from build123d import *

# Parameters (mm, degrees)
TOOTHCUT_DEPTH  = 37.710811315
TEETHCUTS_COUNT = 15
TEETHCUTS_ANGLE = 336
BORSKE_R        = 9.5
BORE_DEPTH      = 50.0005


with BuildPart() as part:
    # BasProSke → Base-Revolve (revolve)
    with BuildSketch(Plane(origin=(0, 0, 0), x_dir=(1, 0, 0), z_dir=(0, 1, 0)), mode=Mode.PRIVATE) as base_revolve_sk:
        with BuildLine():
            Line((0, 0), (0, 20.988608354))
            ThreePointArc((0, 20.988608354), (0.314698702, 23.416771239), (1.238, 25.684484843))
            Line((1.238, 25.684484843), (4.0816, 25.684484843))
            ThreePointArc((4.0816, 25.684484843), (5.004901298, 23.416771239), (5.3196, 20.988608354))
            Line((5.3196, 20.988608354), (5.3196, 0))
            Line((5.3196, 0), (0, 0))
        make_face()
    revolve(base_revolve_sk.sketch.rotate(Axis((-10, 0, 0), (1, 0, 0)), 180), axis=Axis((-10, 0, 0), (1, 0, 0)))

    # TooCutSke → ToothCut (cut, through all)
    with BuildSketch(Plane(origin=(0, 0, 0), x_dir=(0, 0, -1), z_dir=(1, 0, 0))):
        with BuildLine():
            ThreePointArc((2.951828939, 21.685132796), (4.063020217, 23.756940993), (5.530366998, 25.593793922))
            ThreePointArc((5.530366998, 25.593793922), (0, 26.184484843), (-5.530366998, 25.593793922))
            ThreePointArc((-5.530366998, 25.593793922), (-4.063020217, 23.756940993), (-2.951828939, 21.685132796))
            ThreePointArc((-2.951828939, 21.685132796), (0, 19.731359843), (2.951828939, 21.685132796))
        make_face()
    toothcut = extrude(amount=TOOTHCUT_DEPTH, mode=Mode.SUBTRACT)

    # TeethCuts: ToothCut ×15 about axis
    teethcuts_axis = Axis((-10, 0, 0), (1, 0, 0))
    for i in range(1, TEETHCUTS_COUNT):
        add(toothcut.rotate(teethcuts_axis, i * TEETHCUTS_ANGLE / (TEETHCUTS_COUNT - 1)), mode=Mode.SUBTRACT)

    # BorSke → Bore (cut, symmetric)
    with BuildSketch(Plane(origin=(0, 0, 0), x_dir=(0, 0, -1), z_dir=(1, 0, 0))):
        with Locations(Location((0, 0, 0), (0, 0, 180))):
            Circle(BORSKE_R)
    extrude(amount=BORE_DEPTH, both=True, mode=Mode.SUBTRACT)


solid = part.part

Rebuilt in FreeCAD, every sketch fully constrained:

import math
import FreeCAD as App
import Part
import Sketcher
Q = App.Units.Quantity

doc = App.newDocument("Part")
body = doc.addObject("PartDesign::Body", "Body")

sketch1 = body.newObject("Sketcher::SketchObject", "Sketch")
sketch1.AttachmentSupport = (doc.getObject("XZ_Plane"), [""])
sketch1.MapMode = "FlatFace"
sketch1.addGeometry(Part.LineSegment(App.Vector(0, -21, 0), App.Vector(0, 0, 0)), False)
sketch1.addGeometry(Part.LineSegment(App.Vector(0, 0, 0), App.Vector(5.3, 0, 0)), False)
sketch1.addGeometry(Part.LineSegment(App.Vector(5.3, 0, 0), App.Vector(5.3, -21, 0)), False)
sketch1.addGeometry(Part.ArcOfCircle(Part.Circle(App.Vector(-4.2, -21, 0), App.Vector(0, 0, 1), 9.5), math.radians(-30), math.radians(0)), False)
sketch1.addGeometry(Part.LineSegment(App.Vector(4.1, -25.7, 0), App.Vector(1.2, -25.7, 0)), False)
sketch1.addGeometry(Part.ArcOfCircle(Part.Circle(App.Vector(9.5, -21, 0), App.Vector(0, 0, 1), 9.5), math.radians(-180), math.radians(-150)), False)
sketch1.addConstraint(Sketcher.Constraint("Coincident", 0, 2, 1, 1))
sketch1.addConstraint(Sketcher.Constraint("Coincident", 1, 2, 2, 1))
sketch1.addConstraint(Sketcher.Constraint("Tangent", 2, 2, 3, 2))
sketch1.addConstraint(Sketcher.Constraint("Coincident", 3, 1, 4, 1))
sketch1.addConstraint(Sketcher.Constraint("Coincident", 4, 2, 5, 2))
sketch1.addConstraint(Sketcher.Constraint("Tangent", 5, 1, 0, 1))
sketch1.addConstraint(Sketcher.Constraint("Vertical", 0))
sketch1.addConstraint(Sketcher.Constraint("Horizontal", 1))
sketch1.addConstraint(Sketcher.Constraint("Vertical", 2))
sketch1.addConstraint(Sketcher.Constraint("Horizontal", 4))
sketch1.addConstraint(Sketcher.Constraint("Coincident", 0, 2, -1, 1))
sketch1.addConstraint(Sketcher.Constraint("Equal", 3, 5))
sketch1.addConstraint(Sketcher.Constraint("Horizontal", 3, 3, 5, 3))
sketch1.addConstraint(Sketcher.Constraint("Radius", 3, Q("0.375 in")))
sketch1.addConstraint(Sketcher.Constraint("DistanceX", 1, 1, 1, 2, 5.3196))
sketch1.addConstraint(Sketcher.Constraint("DistanceX", 4, 2, 4, 1, 2.8436))
sketch1.addConstraint(Sketcher.Constraint("DistanceY", 3, 1, -1, 1, Q("1.0112002 in")))
revolution = body.newObject("PartDesign::Revolution", "Revolution")
revolution.Profile = sketch1
revolution.ReferenceAxis = (sketch1, ["H_Axis"])
revolution.Angle = 360

sketch2 = body.newObject("Sketcher::SketchObject", "Sketch001")
sketch2.AttachmentSupport = (doc.getObject("YZ_Plane"), [""])
sketch2.MapMode = "FlatFace"
sketch2.addGeometry(Part.ArcOfCircle(Part.Circle(App.Vector(16.6, -14.9, 0), App.Vector(0, 0, 1), 13), math.radians(46), math.radians(67)), False)
sketch2.addGeometry(Part.ArcOfCircle(Part.Circle(App.Vector(0, 0, 0), App.Vector(0, 0, 1), 26.2), math.radians(-12), math.radians(12)), False)
sketch2.addGeometry(Part.ArcOfCircle(Part.Circle(App.Vector(16.6, 14.9, 0), App.Vector(0, 0, 1), 13), math.radians(-67), math.radians(-46)), False)
sketch2.addGeometry(Part.ArcOfCircle(Part.Circle(App.Vector(22.9, 0, 0), App.Vector(0, 0, 1), 3.2), math.radians(113), math.radians(247)), False)
sketch2.addConstraint(Sketcher.Constraint("Coincident", 0, 1, 1, 1))
sketch2.addConstraint(Sketcher.Constraint("Coincident", 1, 2, 2, 2))
sketch2.addConstraint(Sketcher.Constraint("Tangent", 2, 1, 3, 1))
sketch2.addConstraint(Sketcher.Constraint("Tangent", 3, 2, 0, 2))
sketch2.addConstraint(Sketcher.Constraint("Coincident", 1, 3, -1, 1))
sketch2.addConstraint(Sketcher.Constraint("Equal", 0, 2))
sketch2.addConstraint(Sketcher.Constraint("Symmetric", 0, 3, 2, 3, -1))
sketch2.addConstraint(Sketcher.Constraint("Radius", 0, Q("0.51 in")))
sketch2.addConstraint(Sketcher.Constraint("Radius", 3, 3.20675))
sketch2.addConstraint(Sketcher.Constraint("Radius", 1, 26.184485))
sketch2.addConstraint(Sketcher.Constraint("DistanceX", -1, 1, 0, 3, 16.623602))
sketch2.addConstraint(Sketcher.Constraint("DistanceY", 0, 3, -1, 1, 14.876049))
pocket1 = body.newObject("PartDesign::Pocket", "Pocket")
pocket1.Profile = sketch2
pocket1.Type = "ThroughAll"
pocket1.Reversed = True
doc.recompute()

polarpattern = body.newObject("PartDesign::PolarPattern", "PolarPattern")
polarpattern.Originals = [pocket1]
polarpattern.Axis = (doc.getObject("X_Axis"), [""])
polarpattern.Angle = 360
polarpattern.Occurrences = 15
body.Tip = polarpattern

sketch3 = body.newObject("Sketcher::SketchObject", "Sketch002")
sketch3.AttachmentSupport = (doc.getObject("YZ_Plane"), [""])
sketch3.MapMode = "FlatFace"
sketch3.addGeometry(Part.Circle(App.Vector(0, 0, 0), App.Vector(0, 0, 1), 10), False)
sketch3.addConstraint(Sketcher.Constraint("Coincident", 0, 3, -1, 1))
sketch3.addConstraint(Sketcher.Constraint("Diameter", 0, 19.0))
pocket2 = body.newObject("PartDesign::Pocket", "Pocket001")
pocket2.Profile = sketch3
pocket2.Length = 100.001
pocket2.Midplane = True

doc.recompute()
